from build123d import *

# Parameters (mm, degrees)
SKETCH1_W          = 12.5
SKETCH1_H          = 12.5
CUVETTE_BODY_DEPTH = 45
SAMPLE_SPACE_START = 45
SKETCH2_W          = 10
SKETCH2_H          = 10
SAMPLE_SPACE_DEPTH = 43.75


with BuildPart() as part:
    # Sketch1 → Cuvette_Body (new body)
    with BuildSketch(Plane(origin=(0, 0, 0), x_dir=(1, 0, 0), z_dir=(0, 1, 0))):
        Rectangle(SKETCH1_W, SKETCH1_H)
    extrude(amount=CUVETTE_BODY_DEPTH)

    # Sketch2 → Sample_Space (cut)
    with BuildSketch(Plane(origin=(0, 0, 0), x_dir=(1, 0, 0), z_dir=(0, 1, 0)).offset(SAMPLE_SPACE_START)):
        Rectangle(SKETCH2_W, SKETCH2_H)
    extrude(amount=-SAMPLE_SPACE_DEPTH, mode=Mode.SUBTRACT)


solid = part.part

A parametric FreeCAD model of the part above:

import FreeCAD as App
import Part
import Sketcher

V = App.Vector


def add_polygon(sketch, points):
    """Adds a closed chain of lines whose ends are joined by coincident constraints."""
    first, n = sketch.GeometryCount, len(points)
    for a, b in zip(points, points[1:] + points[:1]):
        sketch.addGeometry(Part.LineSegment(App.Vector(*a, 0), App.Vector(*b, 0)), False)
    for i in range(n):
        sketch.addConstraint(Sketcher.Constraint("Coincident", first + i, 2, first + (i + 1) % n, 1))

doc = App.newDocument("Part")
body = doc.addObject("PartDesign::Body", "Body")

sketch1 = body.newObject("Sketcher::SketchObject", "Sketch")
sketch1.AttachmentSupport = (doc.getObject("XZ_Plane"), [""])
sketch1.MapMode = "FlatFace"
add_polygon(sketch1, [(-6, -6), (-6, 6), (6, 6), (6, -6)])
sketch1.addConstraint([
    Sketcher.Constraint("Vertical", 0),
    Sketcher.Constraint("Horizontal", 1),
    Sketcher.Constraint("Vertical", 2),
    Sketcher.Constraint("Horizontal", 3),
    Sketcher.Constraint("Symmetric", 0, 2, 2, 2, -1, 1),
    Sketcher.Constraint("Equal", 3, 0),
    Sketcher.Constraint("DistanceX", 1, 1, 1, 2, 12.5),
])
pad1 = body.newObject("PartDesign::Pad", "Pad")
pad1.Profile = sketch1
pad1.Length = 45
pad1.Reversed = True

sketch2 = body.newObject("Sketcher::SketchObject", "Sketch001")
sketch2.AttachmentSupport = (doc.getObject("XZ_Plane"), [""])
sketch2.MapMode = "FlatFace"
sketch2.AttachmentOffset = App.Placement(V(0, 0, -45), App.Rotation())
add_polygon(sketch2, [(-5, -5), (-5, 5), (5, 5), (5, -5)])
sketch2.addConstraint([
    Sketcher.Constraint("Vertical", 0),
    Sketcher.Constraint("Horizontal", 1),
    Sketcher.Constraint("Vertical", 2),
    Sketcher.Constraint("Horizontal", 3),
    Sketcher.Constraint("Symmetric", 0, 2, 2, 2, -1, 1),
    Sketcher.Constraint("Equal", 3, 0),
    Sketcher.Constraint("DistanceX", 1, 1, 1, 2, 10.0),
])
pocket1 = body.newObject("PartDesign::Pocket", "Pocket")
pocket1.Profile = sketch2
pocket1.Length = 43.75
pocket1.Reversed = True

doc.recompute()
